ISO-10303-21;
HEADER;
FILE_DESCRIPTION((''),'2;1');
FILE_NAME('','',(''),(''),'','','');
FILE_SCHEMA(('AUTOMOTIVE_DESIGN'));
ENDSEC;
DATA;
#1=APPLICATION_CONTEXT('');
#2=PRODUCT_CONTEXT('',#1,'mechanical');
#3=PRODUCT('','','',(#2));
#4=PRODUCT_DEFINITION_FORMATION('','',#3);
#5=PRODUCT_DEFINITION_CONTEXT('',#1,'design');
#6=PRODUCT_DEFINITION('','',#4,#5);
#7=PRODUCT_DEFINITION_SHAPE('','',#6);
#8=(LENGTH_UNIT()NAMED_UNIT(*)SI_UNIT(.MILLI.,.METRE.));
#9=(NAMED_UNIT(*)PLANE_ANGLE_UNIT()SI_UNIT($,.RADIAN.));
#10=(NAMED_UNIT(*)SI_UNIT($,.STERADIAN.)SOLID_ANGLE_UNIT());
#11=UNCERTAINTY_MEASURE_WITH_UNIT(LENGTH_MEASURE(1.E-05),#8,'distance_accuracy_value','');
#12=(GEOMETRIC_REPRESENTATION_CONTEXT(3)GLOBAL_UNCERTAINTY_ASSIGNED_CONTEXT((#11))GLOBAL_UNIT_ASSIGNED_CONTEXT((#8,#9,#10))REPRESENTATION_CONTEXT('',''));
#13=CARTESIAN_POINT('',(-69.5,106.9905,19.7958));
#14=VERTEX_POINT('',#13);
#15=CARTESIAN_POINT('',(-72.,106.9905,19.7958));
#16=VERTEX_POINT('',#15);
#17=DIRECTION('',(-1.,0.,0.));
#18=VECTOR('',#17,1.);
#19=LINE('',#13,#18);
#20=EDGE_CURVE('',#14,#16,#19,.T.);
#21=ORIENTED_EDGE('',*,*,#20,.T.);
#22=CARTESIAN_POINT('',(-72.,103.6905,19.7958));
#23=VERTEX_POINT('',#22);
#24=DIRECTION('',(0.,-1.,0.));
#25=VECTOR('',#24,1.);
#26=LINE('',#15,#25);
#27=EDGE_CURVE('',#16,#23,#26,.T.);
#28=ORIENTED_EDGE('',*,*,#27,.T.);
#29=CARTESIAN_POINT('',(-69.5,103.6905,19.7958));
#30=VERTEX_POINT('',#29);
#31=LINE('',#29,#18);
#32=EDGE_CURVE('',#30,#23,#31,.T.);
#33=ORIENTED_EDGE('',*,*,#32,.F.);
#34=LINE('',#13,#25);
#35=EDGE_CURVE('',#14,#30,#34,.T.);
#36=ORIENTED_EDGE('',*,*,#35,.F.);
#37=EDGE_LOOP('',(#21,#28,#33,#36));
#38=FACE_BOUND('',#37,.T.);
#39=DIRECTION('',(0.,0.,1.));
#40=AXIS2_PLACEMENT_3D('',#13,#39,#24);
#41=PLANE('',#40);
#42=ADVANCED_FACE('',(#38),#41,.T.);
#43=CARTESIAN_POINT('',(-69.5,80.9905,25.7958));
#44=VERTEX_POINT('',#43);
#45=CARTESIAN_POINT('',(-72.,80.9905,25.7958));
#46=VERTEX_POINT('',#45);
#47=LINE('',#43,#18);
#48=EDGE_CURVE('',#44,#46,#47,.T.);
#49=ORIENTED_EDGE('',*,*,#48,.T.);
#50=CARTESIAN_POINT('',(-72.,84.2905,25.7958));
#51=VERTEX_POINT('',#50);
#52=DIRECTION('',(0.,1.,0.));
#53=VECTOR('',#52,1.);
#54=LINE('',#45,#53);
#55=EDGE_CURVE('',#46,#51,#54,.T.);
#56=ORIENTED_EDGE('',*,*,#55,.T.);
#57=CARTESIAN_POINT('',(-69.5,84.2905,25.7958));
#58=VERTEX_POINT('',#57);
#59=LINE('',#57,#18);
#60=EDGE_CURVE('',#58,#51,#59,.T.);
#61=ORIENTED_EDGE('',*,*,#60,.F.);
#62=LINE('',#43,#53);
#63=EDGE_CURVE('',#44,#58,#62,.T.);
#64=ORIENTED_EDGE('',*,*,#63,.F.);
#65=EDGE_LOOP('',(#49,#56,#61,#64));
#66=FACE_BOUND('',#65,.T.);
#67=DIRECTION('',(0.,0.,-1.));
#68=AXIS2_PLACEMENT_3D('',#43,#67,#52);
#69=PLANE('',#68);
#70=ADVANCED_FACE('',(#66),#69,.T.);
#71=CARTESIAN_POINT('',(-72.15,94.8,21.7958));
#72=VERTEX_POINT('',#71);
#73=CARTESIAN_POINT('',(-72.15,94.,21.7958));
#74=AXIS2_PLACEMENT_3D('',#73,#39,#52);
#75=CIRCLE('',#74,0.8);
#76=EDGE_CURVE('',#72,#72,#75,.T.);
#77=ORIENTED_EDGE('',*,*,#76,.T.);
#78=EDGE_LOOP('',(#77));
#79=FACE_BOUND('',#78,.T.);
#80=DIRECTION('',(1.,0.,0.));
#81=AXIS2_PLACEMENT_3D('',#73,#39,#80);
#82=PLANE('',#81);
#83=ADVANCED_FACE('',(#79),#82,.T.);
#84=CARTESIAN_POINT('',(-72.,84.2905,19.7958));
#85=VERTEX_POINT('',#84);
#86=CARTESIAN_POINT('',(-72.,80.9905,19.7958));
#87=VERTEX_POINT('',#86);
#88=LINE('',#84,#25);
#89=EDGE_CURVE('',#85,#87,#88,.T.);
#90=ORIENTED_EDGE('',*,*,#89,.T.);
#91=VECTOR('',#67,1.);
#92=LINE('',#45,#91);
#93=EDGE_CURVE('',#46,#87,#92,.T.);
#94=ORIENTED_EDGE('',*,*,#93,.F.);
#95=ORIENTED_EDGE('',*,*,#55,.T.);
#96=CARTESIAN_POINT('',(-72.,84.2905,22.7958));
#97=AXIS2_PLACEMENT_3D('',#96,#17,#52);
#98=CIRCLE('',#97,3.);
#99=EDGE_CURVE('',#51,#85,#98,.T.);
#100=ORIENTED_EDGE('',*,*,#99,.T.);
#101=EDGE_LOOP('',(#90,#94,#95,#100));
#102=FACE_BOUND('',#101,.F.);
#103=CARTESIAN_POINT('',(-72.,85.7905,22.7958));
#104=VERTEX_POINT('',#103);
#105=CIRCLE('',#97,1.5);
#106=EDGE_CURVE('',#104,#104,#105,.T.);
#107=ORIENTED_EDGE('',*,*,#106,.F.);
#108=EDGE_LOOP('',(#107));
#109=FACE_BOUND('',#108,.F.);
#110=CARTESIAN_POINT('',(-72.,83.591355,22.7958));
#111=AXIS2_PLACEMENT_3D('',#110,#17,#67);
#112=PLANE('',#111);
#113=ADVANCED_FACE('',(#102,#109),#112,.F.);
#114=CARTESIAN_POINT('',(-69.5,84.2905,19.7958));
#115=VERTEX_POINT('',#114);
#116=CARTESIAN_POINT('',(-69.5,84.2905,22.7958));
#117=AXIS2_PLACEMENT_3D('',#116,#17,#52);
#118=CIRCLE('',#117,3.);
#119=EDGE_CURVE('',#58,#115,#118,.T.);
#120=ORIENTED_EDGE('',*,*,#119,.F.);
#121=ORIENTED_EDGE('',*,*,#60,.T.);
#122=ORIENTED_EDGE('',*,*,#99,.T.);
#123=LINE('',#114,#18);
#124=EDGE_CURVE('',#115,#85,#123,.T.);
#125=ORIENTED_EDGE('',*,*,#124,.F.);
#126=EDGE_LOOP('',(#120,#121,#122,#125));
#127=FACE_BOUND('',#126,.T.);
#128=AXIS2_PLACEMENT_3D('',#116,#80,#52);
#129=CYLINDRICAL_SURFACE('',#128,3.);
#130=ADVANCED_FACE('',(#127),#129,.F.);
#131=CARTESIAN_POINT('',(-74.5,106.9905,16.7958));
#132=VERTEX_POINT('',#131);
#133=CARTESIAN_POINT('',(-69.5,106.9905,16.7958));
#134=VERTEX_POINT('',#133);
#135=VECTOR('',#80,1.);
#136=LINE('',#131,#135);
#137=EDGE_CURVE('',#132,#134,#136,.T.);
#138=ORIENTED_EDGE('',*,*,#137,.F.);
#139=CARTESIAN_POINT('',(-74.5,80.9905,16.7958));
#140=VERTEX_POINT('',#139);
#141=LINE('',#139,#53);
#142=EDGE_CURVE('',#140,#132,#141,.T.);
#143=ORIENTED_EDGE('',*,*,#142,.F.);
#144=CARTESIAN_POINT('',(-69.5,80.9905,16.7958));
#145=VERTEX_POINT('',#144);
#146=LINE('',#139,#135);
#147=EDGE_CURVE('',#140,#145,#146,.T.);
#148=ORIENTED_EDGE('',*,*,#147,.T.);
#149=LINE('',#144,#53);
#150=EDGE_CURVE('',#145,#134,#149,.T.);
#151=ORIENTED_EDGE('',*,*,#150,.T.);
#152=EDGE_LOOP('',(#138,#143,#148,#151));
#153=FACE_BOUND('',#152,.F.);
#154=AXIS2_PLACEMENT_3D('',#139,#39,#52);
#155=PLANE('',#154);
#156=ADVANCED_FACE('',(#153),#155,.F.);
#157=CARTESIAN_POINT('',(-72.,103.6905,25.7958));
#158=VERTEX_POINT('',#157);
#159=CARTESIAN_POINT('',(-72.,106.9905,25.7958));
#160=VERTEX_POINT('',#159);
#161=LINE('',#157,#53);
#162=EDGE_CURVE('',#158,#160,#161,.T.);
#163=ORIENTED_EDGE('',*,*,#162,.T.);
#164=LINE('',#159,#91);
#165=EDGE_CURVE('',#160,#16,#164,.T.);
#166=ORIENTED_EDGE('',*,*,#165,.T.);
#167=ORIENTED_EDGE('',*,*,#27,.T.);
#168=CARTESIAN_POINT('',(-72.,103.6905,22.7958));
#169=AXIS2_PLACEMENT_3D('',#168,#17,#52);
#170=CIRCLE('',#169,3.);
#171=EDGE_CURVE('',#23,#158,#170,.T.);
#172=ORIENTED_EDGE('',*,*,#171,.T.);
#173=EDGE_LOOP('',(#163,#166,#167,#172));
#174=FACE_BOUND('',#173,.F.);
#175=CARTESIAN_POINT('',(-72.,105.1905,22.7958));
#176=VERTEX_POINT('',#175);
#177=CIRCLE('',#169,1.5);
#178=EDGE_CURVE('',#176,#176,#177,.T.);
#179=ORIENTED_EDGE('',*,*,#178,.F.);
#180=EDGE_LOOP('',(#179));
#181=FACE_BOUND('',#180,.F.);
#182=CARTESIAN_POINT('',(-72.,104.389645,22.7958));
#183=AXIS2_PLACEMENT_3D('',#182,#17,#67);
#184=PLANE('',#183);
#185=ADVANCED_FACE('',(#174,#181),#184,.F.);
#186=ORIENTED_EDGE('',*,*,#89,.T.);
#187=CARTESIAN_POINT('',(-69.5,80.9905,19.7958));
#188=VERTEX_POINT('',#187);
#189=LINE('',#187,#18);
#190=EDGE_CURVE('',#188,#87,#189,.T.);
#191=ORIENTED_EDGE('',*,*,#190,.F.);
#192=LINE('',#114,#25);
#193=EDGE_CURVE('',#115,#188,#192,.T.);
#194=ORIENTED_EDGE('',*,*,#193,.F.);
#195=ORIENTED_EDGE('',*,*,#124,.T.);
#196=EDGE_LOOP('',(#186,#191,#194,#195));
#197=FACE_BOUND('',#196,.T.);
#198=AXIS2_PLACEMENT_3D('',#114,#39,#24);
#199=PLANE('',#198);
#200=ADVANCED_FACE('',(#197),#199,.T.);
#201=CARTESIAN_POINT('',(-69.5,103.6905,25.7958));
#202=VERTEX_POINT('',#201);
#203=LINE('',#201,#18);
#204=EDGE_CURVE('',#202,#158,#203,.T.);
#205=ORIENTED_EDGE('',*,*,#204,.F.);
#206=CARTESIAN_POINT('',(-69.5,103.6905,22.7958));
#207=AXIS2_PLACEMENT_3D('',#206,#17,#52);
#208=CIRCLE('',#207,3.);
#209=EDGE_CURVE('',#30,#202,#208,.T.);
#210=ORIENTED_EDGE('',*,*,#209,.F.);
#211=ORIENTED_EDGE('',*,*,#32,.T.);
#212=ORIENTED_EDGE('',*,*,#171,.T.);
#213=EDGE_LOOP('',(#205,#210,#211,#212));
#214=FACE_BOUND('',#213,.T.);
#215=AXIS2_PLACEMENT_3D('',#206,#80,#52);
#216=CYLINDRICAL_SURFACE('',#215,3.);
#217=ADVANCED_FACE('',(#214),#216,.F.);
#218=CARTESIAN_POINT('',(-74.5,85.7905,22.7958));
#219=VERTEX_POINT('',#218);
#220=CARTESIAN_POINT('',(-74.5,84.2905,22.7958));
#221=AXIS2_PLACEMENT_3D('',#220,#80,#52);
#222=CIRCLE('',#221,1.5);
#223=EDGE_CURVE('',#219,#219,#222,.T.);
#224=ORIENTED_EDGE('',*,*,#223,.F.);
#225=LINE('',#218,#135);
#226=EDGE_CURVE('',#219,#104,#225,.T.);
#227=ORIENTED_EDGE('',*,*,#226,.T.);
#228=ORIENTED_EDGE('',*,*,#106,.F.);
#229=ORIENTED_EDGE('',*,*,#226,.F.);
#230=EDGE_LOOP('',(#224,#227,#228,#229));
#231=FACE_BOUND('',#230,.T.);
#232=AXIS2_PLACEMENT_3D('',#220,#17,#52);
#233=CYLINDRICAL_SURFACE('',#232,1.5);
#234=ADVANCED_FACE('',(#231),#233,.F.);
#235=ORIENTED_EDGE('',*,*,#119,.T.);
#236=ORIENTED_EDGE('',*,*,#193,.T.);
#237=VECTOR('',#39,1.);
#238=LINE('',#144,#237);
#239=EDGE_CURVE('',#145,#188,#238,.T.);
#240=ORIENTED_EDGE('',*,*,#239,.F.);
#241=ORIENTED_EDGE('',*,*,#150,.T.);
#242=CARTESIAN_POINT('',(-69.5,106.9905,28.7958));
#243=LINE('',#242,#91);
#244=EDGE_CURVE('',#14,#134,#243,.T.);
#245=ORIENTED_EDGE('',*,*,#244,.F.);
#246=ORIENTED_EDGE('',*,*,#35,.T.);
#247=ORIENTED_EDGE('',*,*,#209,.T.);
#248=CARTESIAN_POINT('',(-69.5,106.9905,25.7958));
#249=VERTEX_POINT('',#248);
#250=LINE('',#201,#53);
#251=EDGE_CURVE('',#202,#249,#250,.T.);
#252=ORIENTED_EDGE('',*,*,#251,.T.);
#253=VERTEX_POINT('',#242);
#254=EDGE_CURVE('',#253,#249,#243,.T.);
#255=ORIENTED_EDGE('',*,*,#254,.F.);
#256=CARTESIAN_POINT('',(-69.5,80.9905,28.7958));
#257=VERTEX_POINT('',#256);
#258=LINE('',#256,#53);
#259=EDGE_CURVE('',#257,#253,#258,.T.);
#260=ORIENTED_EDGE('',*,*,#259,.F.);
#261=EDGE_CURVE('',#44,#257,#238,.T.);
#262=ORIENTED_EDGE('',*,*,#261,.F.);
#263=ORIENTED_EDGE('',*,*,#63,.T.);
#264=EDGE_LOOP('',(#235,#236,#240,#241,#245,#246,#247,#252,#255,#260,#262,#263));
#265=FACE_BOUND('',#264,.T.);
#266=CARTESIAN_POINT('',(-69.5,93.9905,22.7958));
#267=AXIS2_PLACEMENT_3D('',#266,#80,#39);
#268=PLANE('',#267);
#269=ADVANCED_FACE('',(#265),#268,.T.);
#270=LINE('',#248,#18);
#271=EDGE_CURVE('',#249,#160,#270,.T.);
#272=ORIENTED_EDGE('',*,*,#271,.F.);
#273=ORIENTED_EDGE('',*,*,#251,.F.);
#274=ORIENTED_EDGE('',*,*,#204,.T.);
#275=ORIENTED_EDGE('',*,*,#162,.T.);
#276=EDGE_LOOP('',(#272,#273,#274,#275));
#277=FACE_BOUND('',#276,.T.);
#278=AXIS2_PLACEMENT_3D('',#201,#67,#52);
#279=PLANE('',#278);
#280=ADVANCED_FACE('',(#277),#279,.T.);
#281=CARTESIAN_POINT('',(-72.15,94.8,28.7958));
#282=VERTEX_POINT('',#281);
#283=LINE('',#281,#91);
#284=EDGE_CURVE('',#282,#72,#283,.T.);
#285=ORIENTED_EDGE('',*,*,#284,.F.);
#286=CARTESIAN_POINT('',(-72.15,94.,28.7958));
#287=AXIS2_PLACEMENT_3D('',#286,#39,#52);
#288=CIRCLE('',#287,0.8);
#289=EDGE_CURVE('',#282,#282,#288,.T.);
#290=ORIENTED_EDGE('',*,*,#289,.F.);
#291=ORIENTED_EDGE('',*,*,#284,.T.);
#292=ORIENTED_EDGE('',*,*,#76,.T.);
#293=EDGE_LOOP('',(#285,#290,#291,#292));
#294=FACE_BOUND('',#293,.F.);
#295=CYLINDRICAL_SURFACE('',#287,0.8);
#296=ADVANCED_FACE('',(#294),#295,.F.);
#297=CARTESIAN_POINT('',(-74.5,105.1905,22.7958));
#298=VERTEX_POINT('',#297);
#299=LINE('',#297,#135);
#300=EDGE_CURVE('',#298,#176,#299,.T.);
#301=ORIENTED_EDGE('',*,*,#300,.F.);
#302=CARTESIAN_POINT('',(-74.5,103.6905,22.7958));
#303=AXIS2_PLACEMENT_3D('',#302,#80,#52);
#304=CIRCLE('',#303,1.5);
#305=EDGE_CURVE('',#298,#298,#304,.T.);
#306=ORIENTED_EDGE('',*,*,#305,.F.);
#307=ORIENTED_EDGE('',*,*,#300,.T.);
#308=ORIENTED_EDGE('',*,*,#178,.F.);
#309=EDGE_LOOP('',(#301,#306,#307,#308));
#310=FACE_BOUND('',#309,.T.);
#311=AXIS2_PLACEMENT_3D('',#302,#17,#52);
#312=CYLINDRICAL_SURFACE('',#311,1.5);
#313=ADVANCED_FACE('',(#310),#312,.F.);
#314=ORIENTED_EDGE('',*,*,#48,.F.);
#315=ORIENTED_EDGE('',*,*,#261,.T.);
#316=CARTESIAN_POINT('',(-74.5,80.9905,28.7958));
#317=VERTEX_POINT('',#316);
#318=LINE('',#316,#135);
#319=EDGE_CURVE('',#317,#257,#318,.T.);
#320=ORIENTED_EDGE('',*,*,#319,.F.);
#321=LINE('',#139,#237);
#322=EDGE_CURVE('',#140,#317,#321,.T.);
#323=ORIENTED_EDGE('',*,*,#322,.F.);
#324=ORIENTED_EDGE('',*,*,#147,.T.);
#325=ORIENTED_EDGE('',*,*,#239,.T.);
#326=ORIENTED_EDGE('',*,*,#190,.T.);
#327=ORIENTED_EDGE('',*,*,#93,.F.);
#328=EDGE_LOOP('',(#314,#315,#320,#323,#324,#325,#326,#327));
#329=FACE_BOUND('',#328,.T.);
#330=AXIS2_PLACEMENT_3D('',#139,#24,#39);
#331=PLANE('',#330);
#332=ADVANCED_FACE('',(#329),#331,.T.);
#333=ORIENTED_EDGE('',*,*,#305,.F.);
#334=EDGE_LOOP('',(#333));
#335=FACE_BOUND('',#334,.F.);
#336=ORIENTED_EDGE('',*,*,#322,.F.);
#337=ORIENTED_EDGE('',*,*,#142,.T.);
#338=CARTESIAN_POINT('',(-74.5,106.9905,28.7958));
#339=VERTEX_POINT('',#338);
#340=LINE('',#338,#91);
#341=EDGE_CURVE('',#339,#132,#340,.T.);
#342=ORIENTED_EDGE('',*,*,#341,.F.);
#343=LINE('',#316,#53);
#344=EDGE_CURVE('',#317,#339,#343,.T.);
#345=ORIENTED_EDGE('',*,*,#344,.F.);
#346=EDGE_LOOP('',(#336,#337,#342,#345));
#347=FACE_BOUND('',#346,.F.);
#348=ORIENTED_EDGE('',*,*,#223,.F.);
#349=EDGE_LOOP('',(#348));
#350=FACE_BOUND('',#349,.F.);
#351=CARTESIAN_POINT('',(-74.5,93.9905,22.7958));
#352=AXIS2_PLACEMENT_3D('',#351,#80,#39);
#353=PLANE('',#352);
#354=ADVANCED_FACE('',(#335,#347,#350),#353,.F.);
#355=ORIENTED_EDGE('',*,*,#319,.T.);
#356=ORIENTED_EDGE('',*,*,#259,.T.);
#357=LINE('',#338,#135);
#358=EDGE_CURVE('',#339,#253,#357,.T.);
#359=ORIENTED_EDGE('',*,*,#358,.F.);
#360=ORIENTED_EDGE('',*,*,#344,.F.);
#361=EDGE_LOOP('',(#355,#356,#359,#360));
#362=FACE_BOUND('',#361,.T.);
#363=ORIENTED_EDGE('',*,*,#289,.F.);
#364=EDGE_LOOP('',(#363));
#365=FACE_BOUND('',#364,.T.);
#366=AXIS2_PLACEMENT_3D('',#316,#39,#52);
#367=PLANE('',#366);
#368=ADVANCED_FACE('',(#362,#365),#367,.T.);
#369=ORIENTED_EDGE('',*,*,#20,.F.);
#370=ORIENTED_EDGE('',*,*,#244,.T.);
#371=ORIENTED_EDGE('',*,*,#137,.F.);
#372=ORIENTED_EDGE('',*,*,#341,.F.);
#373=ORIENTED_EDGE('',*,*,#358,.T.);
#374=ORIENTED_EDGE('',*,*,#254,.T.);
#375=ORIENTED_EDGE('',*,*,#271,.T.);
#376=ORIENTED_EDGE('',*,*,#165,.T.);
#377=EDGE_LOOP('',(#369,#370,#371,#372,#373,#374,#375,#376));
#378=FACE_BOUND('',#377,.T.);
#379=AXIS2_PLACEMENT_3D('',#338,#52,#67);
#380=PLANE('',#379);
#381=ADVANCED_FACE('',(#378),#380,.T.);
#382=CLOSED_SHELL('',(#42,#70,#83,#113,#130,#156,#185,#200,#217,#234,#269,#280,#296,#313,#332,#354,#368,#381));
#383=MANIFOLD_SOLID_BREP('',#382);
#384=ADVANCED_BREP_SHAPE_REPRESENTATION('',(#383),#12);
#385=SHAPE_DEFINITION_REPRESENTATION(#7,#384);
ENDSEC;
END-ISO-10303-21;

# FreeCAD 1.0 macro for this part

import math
import FreeCAD as App
import Part
import Sketcher
Q = App.Units.Quantity

doc = App.newDocument("Part")
body = doc.addObject("PartDesign::Body", "Body")

# Sketch on YZ plane
sketch1 = doc.addObject("Sketcher::SketchObject", "Sketch")
body.addObject(sketch1)
sketch1.AttachmentSupport = (doc.YZ_Plane, [""])
sketch1.MapMode = "FlatFace"
sketch1.AttachmentOffset = App.Placement(App.Vector(0, 0, -74.5), App.Rotation())
sketch1.addGeometry(Part.LineSegment(App.Vector(81, 28.8, 0), App.Vector(81, 16.8, 0)), False)
sketch1.addGeometry(Part.LineSegment(App.Vector(81, 16.8, 0), App.Vector(107, 16.8, 0)), False)
sketch1.addGeometry(Part.LineSegment(App.Vector(107, 16.8, 0), App.Vector(107, 28.8, 0)), False)
sketch1.addGeometry(Part.LineSegment(App.Vector(107, 28.8, 0), App.Vector(81, 28.8, 0)), False)
sketch1.addGeometry(Part.Circle(App.Vector(84.3, 22.8, 0), App.Vector(0, 0, 1), 1.5), False)
sketch1.addGeometry(Part.Circle(App.Vector(103.7, 22.8, 0), App.Vector(0, 0, 1), 1.5), False)
sketch1.addConstraint(Sketcher.Constraint("Coincident", 0, 2, 1, 1))
sketch1.addConstraint(Sketcher.Constraint("Coincident", 1, 2, 2, 1))
sketch1.addConstraint(Sketcher.Constraint("Coincident", 2, 2, 3, 1))
sketch1.addConstraint(Sketcher.Constraint("Coincident", 3, 2, 0, 1))
sketch1.addConstraint(Sketcher.Constraint("Vertical", 0))
sketch1.addConstraint(Sketcher.Constraint("Horizontal", 1))
sketch1.addConstraint(Sketcher.Constraint("Vertical", 2))
sketch1.addConstraint(Sketcher.Constraint("Horizontal", 3))
sketch1.addConstraint(Sketcher.Constraint("Equal", 4, 5))
sketch1.addConstraint(Sketcher.Constraint("Horizontal", 4, 3, 5, 3))
sketch1.addConstraint(Sketcher.Constraint("Diameter", 4, Q("3 mm")))
sketch1.addConstraint(Sketcher.Constraint("DistanceX", 1, 1, 1, 2, Q("26 mm")))
sketch1.addConstraint(Sketcher.Constraint("DistanceY", 0, 2, 0, 1, Q("12 mm")))
sketch1.addConstraint(Sketcher.Constraint("DistanceY", 0, 2, 4, 3, Q("6 mm")))
sketch1.addConstraint(Sketcher.Constraint("DistanceX", 4, 3, 5, 3, Q("19.4 mm")))
sketch1.addConstraint(Sketcher.Constraint("DistanceX", 0, 2, 4, 3, Q("3.3 mm")))
sketch1.addConstraint(Sketcher.Constraint("DistanceX", -1, 1, 4, 3, Q("84.2905 mm")))
sketch1.addConstraint(Sketcher.Constraint("DistanceY", -1, 1, 4, 3, Q("22.7958 mm")))
pad1 = doc.addObject("PartDesign::Pad", "Pad")
body.addObject(pad1)
pad1.Profile = sketch1
pad1.Length = 5

# Sketch on XY plane
sketch2 = doc.addObject("Sketcher::SketchObject", "Sketch001")
body.addObject(sketch2)
sketch2.AttachmentSupport = (doc.XY_Plane, [""])
sketch2.MapMode = "FlatFace"
sketch2.AttachmentOffset = App.Placement(App.Vector(0, 0, 28.7958), App.Rotation())
sketch2.addGeometry(Part.Circle(App.Vector(-72.2, 94, 0), App.Vector(0, 0, 1), 0.8), False)
sketch2.addConstraint(Sketcher.Constraint("Diameter", 0, Q("1.6 mm")))
sketch2.addConstraint(Sketcher.Constraint("DistanceY", -1, 1, 0, 3, Q("94 mm")))
sketch2.addConstraint(Sketcher.Constraint("DistanceX", 0, 3, -1, 1, Q("72.15 mm")))
pocket1 = doc.addObject("PartDesign::Pocket", "Pocket")
body.addObject(pocket1)
pocket1.Profile = sketch2
pocket1.Length = 7

# Sketch on YZ plane
sketch3 = doc.addObject("Sketcher::SketchObject", "Sketch002")
body.addObject(sketch3)
sketch3.AttachmentSupport = (doc.YZ_Plane, [""])
sketch3.MapMode = "FlatFace"
sketch3.AttachmentOffset = App.Placement(App.Vector(0, 0, -69.5), App.Rotation())
sketch3.addGeometry(Part.LineSegment(App.Vector(81, 19.8, 0), App.Vector(84.3, 19.8, 0)), False)
sketch3.addGeometry(Part.ArcOfCircle(Part.Circle(App.Vector(84.3, 22.8, 0), App.Vector(0, 0, 1), 3), math.radians(-90), math.radians(90)), False)
sketch3.addGeometry(Part.LineSegment(App.Vector(84.3, 25.8, 0), App.Vector(81, 25.8, 0)), False)
sketch3.addGeometry(Part.LineSegment(App.Vector(81, 25.8, 0), App.Vector(81, 19.8, 0)), False)
sketch3.addGeometry(Part.LineSegment(App.Vector(107, 25.8, 0), App.Vector(103.7, 25.8, 0)), False)
sketch3.addGeometry(Part.ArcOfCircle(Part.Circle(App.Vector(103.7, 22.8, 0), App.Vector(0, 0, 1), 3), math.radians(90), math.radians(270)), False)
sketch3.addGeometry(Part.LineSegment(App.Vector(103.7, 19.8, 0), App.Vector(107, 19.8, 0)), False)
sketch3.addGeometry(Part.LineSegment(App.Vector(107, 19.8, 0), App.Vector(107, 25.8, 0)), False)
sketch3.addConstraint(Sketcher.Constraint("Tangent", 0, 2, 1, 1))
sketch3.addConstraint(Sketcher.Constraint("Tangent", 1, 2, 2, 1))
sketch3.addConstraint(Sketcher.Constraint("Coincident", 2, 2, 3, 1))
sketch3.addConstraint(Sketcher.Constraint("Coincident", 3, 2, 0, 1))
sketch3.addConstraint(Sketcher.Constraint("Tangent", 4, 2, 5, 1))
sketch3.addConstraint(Sketcher.Constraint("Tangent", 5, 2, 6, 1))
sketch3.addConstraint(Sketcher.Constraint("Coincident", 6, 2, 7, 1))
sketch3.addConstraint(Sketcher.Constraint("Coincident", 7, 2, 4, 1))
sketch3.addConstraint(Sketcher.Constraint("Horizontal", 0))
sketch3.addConstraint(Sketcher.Constraint("Horizontal", 2))
sketch3.addConstraint(Sketcher.Constraint("Vertical", 3))
sketch3.addConstraint(Sketcher.Constraint("Horizontal", 4))
sketch3.addConstraint(Sketcher.Constraint("Horizontal", 6))
sketch3.addConstraint(Sketcher.Constraint("Vertical", 7))
sketch3.addConstraint(Sketcher.Constraint("Equal", 1, 5))
sketch3.addConstraint(Sketcher.Constraint("Horizontal", 1, 3, 5, 3))
sketch3.addConstraint(Sketcher.Constraint("Equal", 2, 4))
sketch3.addConstraint(Sketcher.Constraint("Radius", 1, Q("3 mm")))
sketch3.addConstraint(Sketcher.Constraint("DistanceX", 0, 1, 0, 2, Q("3.3 mm")))
sketch3.addConstraint(Sketcher.Constraint("DistanceX", 1, 3, 5, 3, Q("19.4 mm")))
sketch3.addConstraint(Sketcher.Constraint("DistanceX", -1, 1, 1, 3, Q("84.2905 mm")))
sketch3.addConstraint(Sketcher.Constraint("DistanceY", -1, 1, 1, 3, Q("22.7958 mm")))
pocket2 = doc.addObject("PartDesign::Pocket", "Pocket001")
body.addObject(pocket2)
pocket2.Profile = sketch3
pocket2.Length = 2.5

doc.recompute()
